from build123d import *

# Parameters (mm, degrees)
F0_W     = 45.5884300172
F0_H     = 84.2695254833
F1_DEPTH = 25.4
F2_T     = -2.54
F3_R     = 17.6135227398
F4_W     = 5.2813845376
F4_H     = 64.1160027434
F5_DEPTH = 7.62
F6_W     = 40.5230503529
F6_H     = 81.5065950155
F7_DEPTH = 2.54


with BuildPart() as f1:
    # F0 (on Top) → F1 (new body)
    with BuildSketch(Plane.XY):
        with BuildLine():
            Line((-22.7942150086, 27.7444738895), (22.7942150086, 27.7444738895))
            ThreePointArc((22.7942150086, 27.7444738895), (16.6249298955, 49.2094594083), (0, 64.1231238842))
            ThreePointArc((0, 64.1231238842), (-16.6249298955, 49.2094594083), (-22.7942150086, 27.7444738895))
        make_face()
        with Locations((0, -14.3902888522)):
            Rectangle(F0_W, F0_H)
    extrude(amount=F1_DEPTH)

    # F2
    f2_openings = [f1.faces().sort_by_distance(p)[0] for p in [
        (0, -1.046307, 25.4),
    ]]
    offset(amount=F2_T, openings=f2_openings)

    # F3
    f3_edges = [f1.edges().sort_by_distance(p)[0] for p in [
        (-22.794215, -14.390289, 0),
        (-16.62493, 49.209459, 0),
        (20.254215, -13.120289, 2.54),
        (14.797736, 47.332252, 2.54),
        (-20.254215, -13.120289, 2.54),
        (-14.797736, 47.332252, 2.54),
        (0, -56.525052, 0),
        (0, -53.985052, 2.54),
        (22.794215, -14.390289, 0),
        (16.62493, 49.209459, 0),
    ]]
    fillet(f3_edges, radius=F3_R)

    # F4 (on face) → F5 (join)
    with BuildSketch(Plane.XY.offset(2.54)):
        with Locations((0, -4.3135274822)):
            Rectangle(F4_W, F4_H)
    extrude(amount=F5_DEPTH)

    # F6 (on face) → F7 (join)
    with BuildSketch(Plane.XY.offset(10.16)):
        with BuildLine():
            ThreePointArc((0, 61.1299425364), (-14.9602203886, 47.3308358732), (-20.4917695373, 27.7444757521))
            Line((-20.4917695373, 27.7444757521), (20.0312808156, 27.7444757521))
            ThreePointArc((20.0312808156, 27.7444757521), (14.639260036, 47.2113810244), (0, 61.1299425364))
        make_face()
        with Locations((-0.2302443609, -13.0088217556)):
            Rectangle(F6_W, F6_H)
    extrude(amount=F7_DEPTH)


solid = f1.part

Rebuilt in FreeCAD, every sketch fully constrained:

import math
import FreeCAD as App
import Part
import Sketcher
Q = App.Units.Quantity


def edges_at(feature, points):
    """Names of the edges that pass closest to the given points."""
    edges = feature.Shape.Edges
    near = lambda p: min(range(len(edges)), key=lambda i: edges[i].distToShape(Part.Vertex(*p))[0])
    return sorted({f"Edge{near(p) + 1}" for p in points})


def faces_at(feature, points):
    """Names of the faces that lie closest to the given points."""
    faces = feature.Shape.Faces
    near = lambda p: min(range(len(faces)), key=lambda i: faces[i].distToShape(Part.Vertex(*p))[0])
    return sorted({f"Face{near(p) + 1}" for p in points})


def add_polygon(sketch, points):
    """Adds a closed chain of lines whose ends are joined by coincident constraints."""
    first, n = sketch.GeometryCount, len(points)
    for a, b in zip(points, points[1:] + points[:1]):
        sketch.addGeometry(Part.LineSegment(App.Vector(*a, 0), App.Vector(*b, 0)), False)
    for i in range(n):
        sketch.addConstraint(Sketcher.Constraint("Coincident", first + i, 2, first + (i + 1) % n, 1))

doc = App.newDocument("Part")
body = doc.addObject("PartDesign::Body", "Body")

# Sketch on XY plane
sketch1 = doc.addObject("Sketcher::SketchObject", "Sketch")
body.addObject(sketch1)
sketch1.AttachmentSupport = (doc.XY_Plane, [""])
sketch1.MapMode = "FlatFace"
sketch1.addGeometry([
    Part.ArcOfCircle(Part.Circle(App.Vector(-17.632323, 27.744474, 0), App.Vector(0, 0, 1), 40.426538), math.radians(0), math.radians(64.141053)),  # 0
    Part.ArcOfCircle(Part.Circle(App.Vector(17.632323, 27.744474, 0), App.Vector(0, 0, 1), 40.426538), math.radians(115.858947), math.radians(180)),  # 1
    Part.LineSegment(App.Vector(-22.794215, 27.744474, 0), App.Vector(-22.794215, -56.525052, 0)),  # 2
    Part.LineSegment(App.Vector(-22.794215, -56.525052, 0), App.Vector(22.794215, -56.525052, 0)),  # 3
    Part.LineSegment(App.Vector(22.794215, -56.525052, 0), App.Vector(22.794215, 27.744474, 0)),  # 4
], False)
sketch1.addConstraint([
    Sketcher.Constraint("Coincident", 0, 2, 1, 1),
    Sketcher.Constraint("Tangent", 1, 2, 2, 1),
    Sketcher.Constraint("Coincident", 2, 2, 3, 1),
    Sketcher.Constraint("Coincident", 3, 2, 4, 1),
    Sketcher.Constraint("Tangent", 4, 2, 0, 1),
    Sketcher.Constraint("Vertical", 2),
    Sketcher.Constraint("Horizontal", 3),
    Sketcher.Constraint("Vertical", 4),
    Sketcher.Constraint("Equal", 0, 1),
    Sketcher.Constraint("Symmetric", 0, 3, 1, 3, -2),
    Sketcher.Constraint("Radius", 0, 40.426538),
    Sketcher.Constraint("DistanceX", 3, 1, 3, 2, 45.58843),
    Sketcher.Constraint("DistanceY", 2, 2, 2, 1, 84.269525),
    Sketcher.Constraint("DistanceY", 2, 2, -1, 1, 56.525052),
])
pad1 = doc.addObject("PartDesign::Pad", "Pad")
body.addObject(pad1)
pad1.Profile = sketch1
pad1.Length = Q("1 in")
doc.recompute()

thickness = doc.addObject("PartDesign::Thickness", "Thickness")
body.addObject(thickness)
thickness.Base = (pad1, faces_at(pad1, [(0, 3.799, 25.4)]))
thickness.Value = Q("0.1 in")
thickness.Reversed = True
thickness.Join = "Arc"
doc.recompute()

fillet = doc.addObject("PartDesign::Fillet", "Fillet")
body.addObject(fillet)
fillet.Base = (thickness, edges_at(thickness, [
    (-22.794, -14.39, 0),
    (-16.625, 49.209, 0),
    (20.254, -13.12, 2.54),
    (14.798, 47.332, 2.54),
    (-20.254, -13.12, 2.54),
    (-14.798, 47.332, 2.54),
    (0, -56.525, 0),
    (0, -53.985, 2.54),
    (22.794, -14.39, 0),
    (16.625, 49.209, 0),
]))
fillet.Radius = 17.613523

# Sketch on XY plane
sketch2 = doc.addObject("Sketcher::SketchObject", "Sketch001")
body.addObject(sketch2)
sketch2.AttachmentSupport = (doc.XY_Plane, [""])
sketch2.MapMode = "FlatFace"
sketch2.AttachmentOffset = App.Placement(App.Vector(0, 0, 0.1 * 25.4), App.Rotation())
add_polygon(sketch2, [(-2.640692, 27.744474), (-2.640692, -36.371529), (2.640692, -36.371529), (2.640692, 27.744474)])  # lines 0-3
sketch2.addConstraint([
    Sketcher.Constraint("Vertical", 0),
    Sketcher.Constraint("Horizontal", 1),
    Sketcher.Constraint("Vertical", 2),
    Sketcher.Constraint("Horizontal", 3),
    Sketcher.Constraint("DistanceX", 1, 1, 1, 2, 5.281385),
    Sketcher.Constraint("DistanceY", 0, 2, 0, 1, 64.116003),
    Sketcher.Constraint("DistanceY", 0, 2, -1, 1, 36.371529),
    Sketcher.Constraint("DistanceX", 0, 2, -1, 1, 2.640692),
])
pad2 = doc.addObject("PartDesign::Pad", "Pad001")
body.addObject(pad2)
pad2.Profile = sketch2
pad2.Length = Q("0.3 in")

# Sketch on XY plane
sketch3 = doc.addObject("Sketcher::SketchObject", "Sketch002")
body.addObject(sketch3)
sketch3.AttachmentSupport = (doc.XY_Plane, [""])
sketch3.MapMode = "FlatFace"
sketch3.AttachmentOffset = App.Placement(App.Vector(0, 0, 0.4 * 25.4), App.Rotation())
sketch3.addGeometry([
    Part.ArcOfCircle(Part.Circle(App.Vector(16.950141, 27.744476, 0), App.Vector(0, 0, 1), 37.441911), math.radians(116.917369), math.radians(180)),  # 0
    Part.LineSegment(App.Vector(-20.49177, 27.744476, 0), App.Vector(-20.49177, -53.762119, 0)),  # 1
    Part.LineSegment(App.Vector(-20.49177, -53.762119, 0), App.Vector(20.031281, -53.762119, 0)),  # 2
    Part.LineSegment(App.Vector(20.031281, -53.762119, 0), App.Vector(20.031281, 27.744476, 0)),  # 3
    Part.ArcOfCircle(Part.Circle(App.Vector(-17.805581, 27.744476, 0), App.Vector(0, 0, 1), 37.836862), math.radians(0), math.radians(61.927515)),  # 4
], False)
sketch3.addConstraint([
    Sketcher.Constraint("Tangent", 0, 2, 1, 1),
    Sketcher.Constraint("Coincident", 1, 2, 2, 1),
    Sketcher.Constraint("Coincident", 2, 2, 3, 1),
    Sketcher.Constraint("Tangent", 3, 2, 4, 1),
    Sketcher.Constraint("Coincident", 4, 2, 0, 1),
    Sketcher.Constraint("Vertical", 1),
    Sketcher.Constraint("Horizontal", 2),
    Sketcher.Constraint("Vertical", 3),
    Sketcher.Constraint("PointOnObject", 4, 2, -2),
    Sketcher.Constraint("Horizontal", 0, 3, 4, 3),
    Sketcher.Constraint("Radius", 0, 37.441911),
    Sketcher.Constraint("Radius", 4, 37.836862),
    Sketcher.Constraint("DistanceX", 2, 1, 2, 2, 40.52305),
    Sketcher.Constraint("DistanceY", 1, 2, 1, 1, 81.506595),
    Sketcher.Constraint("DistanceY", 1, 2, -1, 1, 53.762119),
])
pad3 = doc.addObject("PartDesign::Pad", "Pad002")
body.addObject(pad3)
pad3.Profile = sketch3
pad3.Length = Q("0.1 in")

doc.recompute()
